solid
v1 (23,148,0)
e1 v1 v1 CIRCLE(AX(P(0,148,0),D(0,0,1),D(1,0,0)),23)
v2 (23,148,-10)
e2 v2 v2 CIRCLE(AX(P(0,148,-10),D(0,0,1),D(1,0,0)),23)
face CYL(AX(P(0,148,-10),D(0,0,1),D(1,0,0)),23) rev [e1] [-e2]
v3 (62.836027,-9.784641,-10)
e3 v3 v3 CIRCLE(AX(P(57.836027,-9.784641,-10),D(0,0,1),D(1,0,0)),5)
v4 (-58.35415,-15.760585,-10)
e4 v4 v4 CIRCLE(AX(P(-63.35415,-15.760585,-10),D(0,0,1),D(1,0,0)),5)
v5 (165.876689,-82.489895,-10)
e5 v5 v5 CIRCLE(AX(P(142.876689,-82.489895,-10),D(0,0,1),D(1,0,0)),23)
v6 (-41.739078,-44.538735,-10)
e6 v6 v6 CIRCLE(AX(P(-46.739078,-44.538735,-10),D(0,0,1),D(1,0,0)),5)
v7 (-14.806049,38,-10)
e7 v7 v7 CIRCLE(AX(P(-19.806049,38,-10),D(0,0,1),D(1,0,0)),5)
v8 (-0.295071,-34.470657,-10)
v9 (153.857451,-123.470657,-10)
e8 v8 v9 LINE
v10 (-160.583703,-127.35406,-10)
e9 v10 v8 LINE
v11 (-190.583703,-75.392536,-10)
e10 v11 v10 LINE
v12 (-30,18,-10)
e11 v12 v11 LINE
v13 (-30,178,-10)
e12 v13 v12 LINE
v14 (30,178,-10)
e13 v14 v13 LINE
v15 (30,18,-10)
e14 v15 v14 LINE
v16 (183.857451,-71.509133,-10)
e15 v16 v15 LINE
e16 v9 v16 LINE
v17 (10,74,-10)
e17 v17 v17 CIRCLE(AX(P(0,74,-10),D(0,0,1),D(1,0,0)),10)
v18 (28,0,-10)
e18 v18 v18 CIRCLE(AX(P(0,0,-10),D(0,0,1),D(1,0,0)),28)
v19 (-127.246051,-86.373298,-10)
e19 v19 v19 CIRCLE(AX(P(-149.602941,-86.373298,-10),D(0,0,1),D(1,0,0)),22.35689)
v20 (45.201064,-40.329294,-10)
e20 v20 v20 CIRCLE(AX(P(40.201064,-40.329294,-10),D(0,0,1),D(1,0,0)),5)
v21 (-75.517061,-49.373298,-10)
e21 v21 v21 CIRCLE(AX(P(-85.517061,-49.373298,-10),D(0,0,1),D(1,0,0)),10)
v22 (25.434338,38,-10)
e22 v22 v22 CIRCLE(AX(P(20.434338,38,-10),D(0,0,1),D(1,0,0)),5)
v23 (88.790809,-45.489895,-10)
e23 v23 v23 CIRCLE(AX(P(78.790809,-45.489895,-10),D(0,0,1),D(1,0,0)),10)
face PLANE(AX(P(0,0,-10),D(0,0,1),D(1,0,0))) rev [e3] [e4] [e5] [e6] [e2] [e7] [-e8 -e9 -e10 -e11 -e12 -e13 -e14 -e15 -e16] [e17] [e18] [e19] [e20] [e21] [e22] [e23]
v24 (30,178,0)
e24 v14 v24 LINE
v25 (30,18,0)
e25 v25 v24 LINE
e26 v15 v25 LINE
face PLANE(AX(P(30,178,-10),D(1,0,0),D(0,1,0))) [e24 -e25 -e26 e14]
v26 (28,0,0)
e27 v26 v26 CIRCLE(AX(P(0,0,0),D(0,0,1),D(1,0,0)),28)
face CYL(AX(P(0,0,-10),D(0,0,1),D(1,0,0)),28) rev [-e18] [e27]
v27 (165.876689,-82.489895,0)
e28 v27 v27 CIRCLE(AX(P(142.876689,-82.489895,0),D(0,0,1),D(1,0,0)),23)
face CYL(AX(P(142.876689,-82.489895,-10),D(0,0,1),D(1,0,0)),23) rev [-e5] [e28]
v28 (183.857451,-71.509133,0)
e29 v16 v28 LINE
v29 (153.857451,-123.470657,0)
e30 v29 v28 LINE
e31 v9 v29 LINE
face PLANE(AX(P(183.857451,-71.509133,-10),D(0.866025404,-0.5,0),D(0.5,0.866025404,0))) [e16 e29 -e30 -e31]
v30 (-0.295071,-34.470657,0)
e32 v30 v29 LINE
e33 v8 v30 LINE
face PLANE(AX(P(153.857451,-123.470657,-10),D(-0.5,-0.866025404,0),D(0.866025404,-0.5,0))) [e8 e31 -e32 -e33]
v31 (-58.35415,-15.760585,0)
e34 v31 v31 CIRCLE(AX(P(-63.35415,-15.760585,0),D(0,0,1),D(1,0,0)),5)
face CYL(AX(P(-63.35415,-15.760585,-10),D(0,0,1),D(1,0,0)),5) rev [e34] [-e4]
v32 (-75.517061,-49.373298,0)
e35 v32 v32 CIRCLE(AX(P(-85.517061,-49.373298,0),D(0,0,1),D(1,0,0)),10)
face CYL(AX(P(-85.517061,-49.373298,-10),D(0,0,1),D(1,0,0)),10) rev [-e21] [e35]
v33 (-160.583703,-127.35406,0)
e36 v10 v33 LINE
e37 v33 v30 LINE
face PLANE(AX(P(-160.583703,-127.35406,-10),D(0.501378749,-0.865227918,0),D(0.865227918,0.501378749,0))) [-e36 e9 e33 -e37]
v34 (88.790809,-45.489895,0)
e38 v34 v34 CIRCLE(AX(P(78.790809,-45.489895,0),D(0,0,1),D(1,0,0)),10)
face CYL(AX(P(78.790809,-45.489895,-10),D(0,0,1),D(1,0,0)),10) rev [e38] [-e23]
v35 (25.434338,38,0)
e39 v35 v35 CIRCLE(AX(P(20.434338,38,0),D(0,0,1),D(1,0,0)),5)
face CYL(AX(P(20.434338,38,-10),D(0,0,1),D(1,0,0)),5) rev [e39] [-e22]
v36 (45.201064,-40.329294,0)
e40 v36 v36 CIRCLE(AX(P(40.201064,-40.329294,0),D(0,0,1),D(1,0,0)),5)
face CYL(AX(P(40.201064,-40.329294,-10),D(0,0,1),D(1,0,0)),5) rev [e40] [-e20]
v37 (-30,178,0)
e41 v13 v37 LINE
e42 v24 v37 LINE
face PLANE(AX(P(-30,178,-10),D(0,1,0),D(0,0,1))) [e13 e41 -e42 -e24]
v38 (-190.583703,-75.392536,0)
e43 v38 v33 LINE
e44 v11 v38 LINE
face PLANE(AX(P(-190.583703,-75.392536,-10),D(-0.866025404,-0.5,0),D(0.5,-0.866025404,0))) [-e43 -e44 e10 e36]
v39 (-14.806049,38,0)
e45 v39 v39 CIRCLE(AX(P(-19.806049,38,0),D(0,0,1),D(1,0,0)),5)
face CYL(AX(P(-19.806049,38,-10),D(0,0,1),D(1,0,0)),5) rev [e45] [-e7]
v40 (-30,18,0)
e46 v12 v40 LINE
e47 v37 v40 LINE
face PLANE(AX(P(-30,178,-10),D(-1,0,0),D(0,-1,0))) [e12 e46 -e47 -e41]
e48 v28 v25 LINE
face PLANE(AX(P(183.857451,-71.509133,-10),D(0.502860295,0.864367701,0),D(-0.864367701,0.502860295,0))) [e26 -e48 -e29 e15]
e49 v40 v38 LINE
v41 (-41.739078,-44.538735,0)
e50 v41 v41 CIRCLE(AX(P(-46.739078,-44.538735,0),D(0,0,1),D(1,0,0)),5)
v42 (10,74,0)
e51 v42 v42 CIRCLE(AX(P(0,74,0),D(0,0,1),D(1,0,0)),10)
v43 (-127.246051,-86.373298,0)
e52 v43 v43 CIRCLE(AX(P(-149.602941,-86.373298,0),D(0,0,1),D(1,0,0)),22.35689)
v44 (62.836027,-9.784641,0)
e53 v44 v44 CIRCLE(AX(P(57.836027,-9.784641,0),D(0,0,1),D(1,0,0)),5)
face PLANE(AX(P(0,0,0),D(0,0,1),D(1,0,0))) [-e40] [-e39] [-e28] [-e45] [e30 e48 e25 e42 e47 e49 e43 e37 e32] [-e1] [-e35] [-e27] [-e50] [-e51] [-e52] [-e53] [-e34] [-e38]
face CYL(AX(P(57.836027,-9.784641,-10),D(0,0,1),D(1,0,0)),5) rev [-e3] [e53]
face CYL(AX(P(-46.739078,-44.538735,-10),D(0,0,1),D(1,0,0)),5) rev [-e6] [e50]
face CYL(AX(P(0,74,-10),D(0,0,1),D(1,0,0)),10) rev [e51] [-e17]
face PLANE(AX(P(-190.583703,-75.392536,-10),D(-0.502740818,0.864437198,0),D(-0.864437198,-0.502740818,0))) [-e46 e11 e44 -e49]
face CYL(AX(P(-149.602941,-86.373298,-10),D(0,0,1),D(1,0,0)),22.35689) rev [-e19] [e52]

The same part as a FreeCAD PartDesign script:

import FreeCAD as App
import Part
import Sketcher
Q = App.Units.Quantity

doc = App.newDocument("Part")
body = doc.addObject("PartDesign::Body", "Body")

sketch1 = body.newObject("Sketcher::SketchObject", "Sketch")
sketch1.AttachmentSupport = (doc.getObject("XY_Plane"), [""])
sketch1.MapMode = "FlatFace"
sketch1.addGeometry(Part.LineSegment(App.Vector(30, 178, 0), App.Vector(-30, 178, 0)), False)
sketch1.addGeometry(Part.LineSegment(App.Vector(-30, 178, 0), App.Vector(-30, 18, 0)), False)
sketch1.addGeometry(Part.LineSegment(App.Vector(-30, 18, 0), App.Vector(-191, -75, 0)), False)
sketch1.addGeometry(Part.LineSegment(App.Vector(-191, -75, 0), App.Vector(-161, -127, 0)), False)
sketch1.addGeometry(Part.LineSegment(App.Vector(-161, -127, 0), App.Vector(0, -34, 0)), False)
sketch1.addGeometry(Part.LineSegment(App.Vector(0, -34, 0), App.Vector(154, -123, 0)), False)
sketch1.addGeometry(Part.LineSegment(App.Vector(154, -123, 0), App.Vector(184, -72, 0)), False)
sketch1.addGeometry(Part.LineSegment(App.Vector(184, -72, 0), App.Vector(30, 18, 0)), False)
sketch1.addGeometry(Part.LineSegment(App.Vector(30, 18, 0), App.Vector(30, 178, 0)), False)
sketch1.addGeometry(Part.Circle(App.Vector(143, -82, 0), App.Vector(0, 0, 1), 23), False)
sketch1.addGeometry(Part.Circle(App.Vector(79, -45, 0), App.Vector(0, 0, 1), 10), False)
sketch1.addGeometry(Part.Circle(App.Vector(0, 0, 0), App.Vector(0, 0, 1), 28), False)
sketch1.addGeometry(Part.Circle(App.Vector(-86, -49, 0), App.Vector(0, 0, 1), 10), False)
sketch1.addGeometry(Part.Circle(App.Vector(-150, -86, 0), App.Vector(0, 0, 1), 22), False)
sketch1.addGeometry(Part.Circle(App.Vector(0, 74, 0), App.Vector(0, 0, 1), 10), False)
sketch1.addGeometry(Part.Circle(App.Vector(0, 148, 0), App.Vector(0, 0, 1), 23), False)
sketch1.addConstraint(Sketcher.Constraint("Coincident", 0, 2, 1, 1))
sketch1.addConstraint(Sketcher.Constraint("Coincident", 1, 2, 2, 1))
sketch1.addConstraint(Sketcher.Constraint("Coincident", 2, 2, 3, 1))
sketch1.addConstraint(Sketcher.Constraint("Coincident", 3, 2, 4, 1))
sketch1.addConstraint(Sketcher.Constraint("Coincident", 4, 2, 5, 1))
sketch1.addConstraint(Sketcher.Constraint("Coincident", 5, 2, 6, 1))
sketch1.addConstraint(Sketcher.Constraint("Coincident", 6, 2, 7, 1))
sketch1.addConstraint(Sketcher.Constraint("Coincident", 7, 2, 8, 1))
sketch1.addConstraint(Sketcher.Constraint("Coincident", 8, 2, 0, 1))
sketch1.addConstraint(Sketcher.Constraint("Horizontal", 0))
sketch1.addConstraint(Sketcher.Constraint("Vertical", 1))
sketch1.addConstraint(Sketcher.Constraint("Vertical", 8))
sketch1.addConstraint(Sketcher.Constraint("Coincident", 11, 3, -1, 1))
sketch1.addConstraint(Sketcher.Constraint("Equal", 10, 12))
sketch1.addConstraint(Sketcher.Constraint("Equal", 12, 14))
sketch1.addConstraint(Sketcher.Constraint("Equal", 9, 15))
sketch1.addConstraint(Sketcher.Constraint("Symmetric", 1, 2, 7, 2, -2))
sketch1.addConstraint(Sketcher.Constraint("PointOnObject", 14, 3, -2))
sketch1.addConstraint(Sketcher.Constraint("PointOnObject", 15, 3, -2))
sketch1.addConstraint(Sketcher.Constraint("Perpendicular", 5, 6))
sketch1.addConstraint(Sketcher.Constraint("Equal", 3, 6))
sketch1.addConstraint(Sketcher.Constraint("Equal", 5, 7))
sketch1.addConstraint(Sketcher.Constraint("Diameter", 9, Q("46 mm")))
sketch1.addConstraint(Sketcher.Constraint("Diameter", 10, Q("20 mm")))
sketch1.addConstraint(Sketcher.Constraint("Diameter", 11, Q("56 mm")))
sketch1.addConstraint(Sketcher.Constraint("DistanceX", 0, 2, 0, 1, Q("60 mm")))
sketch1.addConstraint(Sketcher.Constraint("DistanceY", 1, 2, 1, 1, Q("160 mm")))
sketch1.addConstraint(Sketcher.Constraint("Angle", 3, Q("-60 deg")))
sketch1.addConstraint(Sketcher.Constraint("Angle", 5, Q("-30 deg")))
sketch1.addConstraint(Sketcher.Constraint("Distance", 3, Q("60 mm")))
sketch1.addConstraint(Sketcher.Constraint("Distance", 5, Q("178 mm")))
sketch1.addConstraint(Sketcher.Constraint("DistanceY", -1, 1, 14, 3, Q("74 mm")))
sketch1.addConstraint(Sketcher.Constraint("DistanceY", -1, 1, 15, 3, Q("148 mm")))
sketch1.addConstraint(Sketcher.Constraint("DistanceY", -1, 1, 0, 2, Q("178 mm")))
sketch1.addConstraint(Sketcher.Constraint("DistanceY", 9, 3, 10, 3, Q("37 mm")))
sketch1.addConstraint(Sketcher.Constraint("DistanceY", 13, 3, 12, 3, Q("37 mm")))
sketch1.addConstraint(Sketcher.Constraint("Diameter", 13, Q("44.713779 mm")))
sketch1.addConstraint(Sketcher.Constraint("DistanceY", 12, 3, -1, 1, Q("49.373298 mm")))
sketch1.addConstraint(Sketcher.Constraint("DistanceX", -1, 1, 9, 3, Q("142.876689 mm")))
sketch1.addConstraint(Sketcher.Constraint("DistanceX", -1, 1, 10, 3, Q("78.790809 mm")))
sketch1.addConstraint(Sketcher.Constraint("DistanceX", 12, 3, -1, 1, Q("85.517061 mm")))
sketch1.addConstraint(Sketcher.Constraint("DistanceX", 13, 3, -1, 1, Q("149.602941 mm")))
sketch1.addConstraint(Sketcher.Constraint("DistanceY", 3, 2, -1, 1, Q("127.35406 mm")))
sketch1.addConstraint(Sketcher.Constraint("DistanceX", 4, 2, -1, 1, Q("0.295071 mm")))
sketch1.addConstraint(Sketcher.Constraint("DistanceX", 2, 2, 12, 3, Q("105.066642 mm")))
sketch1.addConstraint(Sketcher.Constraint("DistanceY", 9, 3, -1, 1, Q("82.489895 mm")))
pad1 = body.newObject("PartDesign::Pad", "Pad")
pad1.Profile = sketch1
pad1.Length = 10
pad1.Reversed = True

sketch2 = body.newObject("Sketcher::SketchObject", "Sketch001")
sketch2.AttachmentSupport = (doc.getObject("XY_Plane"), [""])
sketch2.MapMode = "FlatFace"
sketch2.addGeometry(Part.Circle(App.Vector(-63, -16, 0), App.Vector(0, 0, 1), 5), False)
sketch2.addGeometry(Part.Circle(App.Vector(-47, -45, 0), App.Vector(0, 0, 1), 5), False)
sketch2.addGeometry(Part.Circle(App.Vector(40, -40, 0), App.Vector(0, 0, 1), 5), False)
sketch2.addGeometry(Part.Circle(App.Vector(58, -10, 0), App.Vector(0, 0, 1), 5), False)
sketch2.addGeometry(Part.Circle(App.Vector(-20, 38, 0), App.Vector(0, 0, 1), 5), False)
sketch2.addGeometry(Part.Circle(App.Vector(20, 38, 0), App.Vector(0, 0, 1), 5), False)
sketch2.addConstraint(Sketcher.Constraint("Equal", 0, 1))
sketch2.addConstraint(Sketcher.Constraint("Equal", 1, 2))
sketch2.addConstraint(Sketcher.Constraint("Equal", 2, 3))
sketch2.addConstraint(Sketcher.Constraint("Equal", 3, 4))
sketch2.addConstraint(Sketcher.Constraint("Equal", 4, 5))
sketch2.addConstraint(Sketcher.Constraint("Horizontal", 4, 3, 5, 3))
sketch2.addConstraint(Sketcher.Constraint("Diameter", 0, Q("10 mm")))
sketch2.addConstraint(Sketcher.Constraint("DistanceY", -1, 1, 4, 3, Q("38 mm")))
sketch2.addConstraint(Sketcher.Constraint("DistanceX", 0, 3, 4, 3, Q("43.548101 mm")))
sketch2.addConstraint(Sketcher.Constraint("DistanceX", 0, 3, -1, 1, Q("63.35415 mm")))
sketch2.addConstraint(Sketcher.Constraint("DistanceY", 3, 3, -1, 1, Q("9.784641 mm")))
sketch2.addConstraint(Sketcher.Constraint("DistanceX", -1, 1, 5, 3, Q("20.434338 mm")))
sketch2.addConstraint(Sketcher.Constraint("DistanceY", 1, 3, 0, 3, Q("28.778149 mm")))
sketch2.addConstraint(Sketcher.Constraint("DistanceX", 1, 3, 2, 3, Q("86.940142 mm")))
sketch2.addConstraint(Sketcher.Constraint("DistanceY", 1, 3, 2, 3, Q("4.209441 mm")))
sketch2.addConstraint(Sketcher.Constraint("DistanceX", 1, 3, 4, 3, Q("26.933029 mm")))
sketch2.addConstraint(Sketcher.Constraint("DistanceX", 5, 3, 3, 3, Q("37.401689 mm")))
sketch2.addConstraint(Sketcher.Constraint("DistanceY", 0, 3, -1, 1, Q("15.760585 mm")))
pocket1 = body.newObject("PartDesign::Pocket", "Pocket")
pocket1.Profile = sketch2
pocket1.Type = "ThroughAll"

doc.recompute()
